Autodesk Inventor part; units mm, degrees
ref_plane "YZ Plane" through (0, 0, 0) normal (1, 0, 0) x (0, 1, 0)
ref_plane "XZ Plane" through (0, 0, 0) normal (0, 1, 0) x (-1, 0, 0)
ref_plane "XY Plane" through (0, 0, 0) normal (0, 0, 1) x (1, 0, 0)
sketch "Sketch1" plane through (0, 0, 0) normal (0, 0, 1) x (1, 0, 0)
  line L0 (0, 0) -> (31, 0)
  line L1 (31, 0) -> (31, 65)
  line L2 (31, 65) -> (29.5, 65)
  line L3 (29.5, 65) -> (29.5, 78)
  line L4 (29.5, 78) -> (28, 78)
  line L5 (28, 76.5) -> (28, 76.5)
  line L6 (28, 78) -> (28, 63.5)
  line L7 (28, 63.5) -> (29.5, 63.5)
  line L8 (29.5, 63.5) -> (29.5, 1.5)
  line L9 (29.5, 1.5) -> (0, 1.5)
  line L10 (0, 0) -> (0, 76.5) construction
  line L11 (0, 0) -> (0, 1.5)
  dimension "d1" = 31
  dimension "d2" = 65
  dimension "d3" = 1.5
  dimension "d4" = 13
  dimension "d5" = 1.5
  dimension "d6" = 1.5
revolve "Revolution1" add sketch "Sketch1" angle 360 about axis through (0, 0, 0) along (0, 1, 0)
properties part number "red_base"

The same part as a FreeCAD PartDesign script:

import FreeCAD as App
import Part
import Sketcher
from FreeCAD import Vector


def add_polygon(sketch, points):
    """Adds a closed chain of lines whose ends are joined by coincident constraints."""
    first, n = sketch.GeometryCount, len(points)
    for a, b in zip(points, points[1:] + points[:1]):
        sketch.addGeometry(Part.LineSegment(App.Vector(*a, 0), App.Vector(*b, 0)), False)
    for i in range(n):
        sketch.addConstraint(Sketcher.Constraint("Coincident", first + i, 2, first + (i + 1) % n, 1))

doc = App.newDocument("Part")
params = doc.addObject("Spreadsheet::Sheet", "Params")
for row, (alias, value) in enumerate([
    ("sketch1_width", "31 mm"),
    ("sketch1_height", "65 mm"),
    ("sketch1_height2", "13 mm"),
    ("sketch1_width2", "1.5 mm"),
    ("revolution_angle", "360 deg"),
], start=1):
    params.set(f"A{row}", alias)
    params.set(f"B{row}", "=" + value)
    params.setAlias(f"B{row}", alias)

body = doc.addObject("PartDesign::Body", "Body")

sketch1 = doc.addObject("Sketcher::SketchObject", "Sketch")
body.addObject(sketch1)
sketch1.AttachmentSupport = (doc.XY_Plane, [""])
sketch1.MapMode = "FlatFace"
add_polygon(sketch1, [(0, 1.5), (0, 0), (31, 0), (31, 65), (29.5, 65), (29.5, 78), (28, 78), (28, 63.5), (29.5, 63.5), (29.5, 1.5)])
sketch1.addConstraint(Sketcher.Constraint("Vertical", 0))
sketch1.addConstraint(Sketcher.Constraint("Horizontal", 1))
sketch1.addConstraint(Sketcher.Constraint("Vertical", 2))
sketch1.addConstraint(Sketcher.Constraint("Horizontal", 3))
sketch1.addConstraint(Sketcher.Constraint("Vertical", 4))
sketch1.addConstraint(Sketcher.Constraint("Horizontal", 5))
sketch1.addConstraint(Sketcher.Constraint("Vertical", 6))
sketch1.addConstraint(Sketcher.Constraint("Horizontal", 7))
sketch1.addConstraint(Sketcher.Constraint("Vertical", 8))
sketch1.addConstraint(Sketcher.Constraint("Horizontal", 9))
sketch1.addConstraint(Sketcher.Constraint("Coincident", 0, 2, -1, 1))
sketch1.addConstraint(Sketcher.Constraint("Vertical", 4, 2, 7, 2))
sketch1.addConstraint(Sketcher.Constraint("Equal", 3, 5))
sketch1.addConstraint(Sketcher.Constraint("Equal", 7, 0))
sketch1.addConstraint(Sketcher.Constraint("DistanceX", 1, 1, 1, 2, 31.0))
sketch1.addConstraint(Sketcher.Constraint("DistanceY", 2, 1, 2, 2, 65.0))
sketch1.addConstraint(Sketcher.Constraint("DistanceY", 4, 1, 4, 2, 13.0))
sketch1.addConstraint(Sketcher.Constraint("DistanceX", 3, 2, 3, 1, 1.5))
sketch1.addConstraint(Sketcher.Constraint("DistanceY", 6, 2, 3, 2, 1.5))
sketch1.setExpression("Constraints[24]", "Params.sketch1_width")
sketch1.setExpression("Constraints[25]", "Params.sketch1_height")
sketch1.setExpression("Constraints[26]", "Params.sketch1_height2")
sketch1.setExpression("Constraints[27]", "Params.sketch1_width2")
revolution = doc.addObject("PartDesign::Revolution", "Revolution")
body.addObject(revolution)
revolution.Profile = sketch1
revolution.ReferenceAxis = (sketch1, ["V_Axis"])
revolution.setExpression("Angle", "Params.revolution_angle")

doc.recompute()
